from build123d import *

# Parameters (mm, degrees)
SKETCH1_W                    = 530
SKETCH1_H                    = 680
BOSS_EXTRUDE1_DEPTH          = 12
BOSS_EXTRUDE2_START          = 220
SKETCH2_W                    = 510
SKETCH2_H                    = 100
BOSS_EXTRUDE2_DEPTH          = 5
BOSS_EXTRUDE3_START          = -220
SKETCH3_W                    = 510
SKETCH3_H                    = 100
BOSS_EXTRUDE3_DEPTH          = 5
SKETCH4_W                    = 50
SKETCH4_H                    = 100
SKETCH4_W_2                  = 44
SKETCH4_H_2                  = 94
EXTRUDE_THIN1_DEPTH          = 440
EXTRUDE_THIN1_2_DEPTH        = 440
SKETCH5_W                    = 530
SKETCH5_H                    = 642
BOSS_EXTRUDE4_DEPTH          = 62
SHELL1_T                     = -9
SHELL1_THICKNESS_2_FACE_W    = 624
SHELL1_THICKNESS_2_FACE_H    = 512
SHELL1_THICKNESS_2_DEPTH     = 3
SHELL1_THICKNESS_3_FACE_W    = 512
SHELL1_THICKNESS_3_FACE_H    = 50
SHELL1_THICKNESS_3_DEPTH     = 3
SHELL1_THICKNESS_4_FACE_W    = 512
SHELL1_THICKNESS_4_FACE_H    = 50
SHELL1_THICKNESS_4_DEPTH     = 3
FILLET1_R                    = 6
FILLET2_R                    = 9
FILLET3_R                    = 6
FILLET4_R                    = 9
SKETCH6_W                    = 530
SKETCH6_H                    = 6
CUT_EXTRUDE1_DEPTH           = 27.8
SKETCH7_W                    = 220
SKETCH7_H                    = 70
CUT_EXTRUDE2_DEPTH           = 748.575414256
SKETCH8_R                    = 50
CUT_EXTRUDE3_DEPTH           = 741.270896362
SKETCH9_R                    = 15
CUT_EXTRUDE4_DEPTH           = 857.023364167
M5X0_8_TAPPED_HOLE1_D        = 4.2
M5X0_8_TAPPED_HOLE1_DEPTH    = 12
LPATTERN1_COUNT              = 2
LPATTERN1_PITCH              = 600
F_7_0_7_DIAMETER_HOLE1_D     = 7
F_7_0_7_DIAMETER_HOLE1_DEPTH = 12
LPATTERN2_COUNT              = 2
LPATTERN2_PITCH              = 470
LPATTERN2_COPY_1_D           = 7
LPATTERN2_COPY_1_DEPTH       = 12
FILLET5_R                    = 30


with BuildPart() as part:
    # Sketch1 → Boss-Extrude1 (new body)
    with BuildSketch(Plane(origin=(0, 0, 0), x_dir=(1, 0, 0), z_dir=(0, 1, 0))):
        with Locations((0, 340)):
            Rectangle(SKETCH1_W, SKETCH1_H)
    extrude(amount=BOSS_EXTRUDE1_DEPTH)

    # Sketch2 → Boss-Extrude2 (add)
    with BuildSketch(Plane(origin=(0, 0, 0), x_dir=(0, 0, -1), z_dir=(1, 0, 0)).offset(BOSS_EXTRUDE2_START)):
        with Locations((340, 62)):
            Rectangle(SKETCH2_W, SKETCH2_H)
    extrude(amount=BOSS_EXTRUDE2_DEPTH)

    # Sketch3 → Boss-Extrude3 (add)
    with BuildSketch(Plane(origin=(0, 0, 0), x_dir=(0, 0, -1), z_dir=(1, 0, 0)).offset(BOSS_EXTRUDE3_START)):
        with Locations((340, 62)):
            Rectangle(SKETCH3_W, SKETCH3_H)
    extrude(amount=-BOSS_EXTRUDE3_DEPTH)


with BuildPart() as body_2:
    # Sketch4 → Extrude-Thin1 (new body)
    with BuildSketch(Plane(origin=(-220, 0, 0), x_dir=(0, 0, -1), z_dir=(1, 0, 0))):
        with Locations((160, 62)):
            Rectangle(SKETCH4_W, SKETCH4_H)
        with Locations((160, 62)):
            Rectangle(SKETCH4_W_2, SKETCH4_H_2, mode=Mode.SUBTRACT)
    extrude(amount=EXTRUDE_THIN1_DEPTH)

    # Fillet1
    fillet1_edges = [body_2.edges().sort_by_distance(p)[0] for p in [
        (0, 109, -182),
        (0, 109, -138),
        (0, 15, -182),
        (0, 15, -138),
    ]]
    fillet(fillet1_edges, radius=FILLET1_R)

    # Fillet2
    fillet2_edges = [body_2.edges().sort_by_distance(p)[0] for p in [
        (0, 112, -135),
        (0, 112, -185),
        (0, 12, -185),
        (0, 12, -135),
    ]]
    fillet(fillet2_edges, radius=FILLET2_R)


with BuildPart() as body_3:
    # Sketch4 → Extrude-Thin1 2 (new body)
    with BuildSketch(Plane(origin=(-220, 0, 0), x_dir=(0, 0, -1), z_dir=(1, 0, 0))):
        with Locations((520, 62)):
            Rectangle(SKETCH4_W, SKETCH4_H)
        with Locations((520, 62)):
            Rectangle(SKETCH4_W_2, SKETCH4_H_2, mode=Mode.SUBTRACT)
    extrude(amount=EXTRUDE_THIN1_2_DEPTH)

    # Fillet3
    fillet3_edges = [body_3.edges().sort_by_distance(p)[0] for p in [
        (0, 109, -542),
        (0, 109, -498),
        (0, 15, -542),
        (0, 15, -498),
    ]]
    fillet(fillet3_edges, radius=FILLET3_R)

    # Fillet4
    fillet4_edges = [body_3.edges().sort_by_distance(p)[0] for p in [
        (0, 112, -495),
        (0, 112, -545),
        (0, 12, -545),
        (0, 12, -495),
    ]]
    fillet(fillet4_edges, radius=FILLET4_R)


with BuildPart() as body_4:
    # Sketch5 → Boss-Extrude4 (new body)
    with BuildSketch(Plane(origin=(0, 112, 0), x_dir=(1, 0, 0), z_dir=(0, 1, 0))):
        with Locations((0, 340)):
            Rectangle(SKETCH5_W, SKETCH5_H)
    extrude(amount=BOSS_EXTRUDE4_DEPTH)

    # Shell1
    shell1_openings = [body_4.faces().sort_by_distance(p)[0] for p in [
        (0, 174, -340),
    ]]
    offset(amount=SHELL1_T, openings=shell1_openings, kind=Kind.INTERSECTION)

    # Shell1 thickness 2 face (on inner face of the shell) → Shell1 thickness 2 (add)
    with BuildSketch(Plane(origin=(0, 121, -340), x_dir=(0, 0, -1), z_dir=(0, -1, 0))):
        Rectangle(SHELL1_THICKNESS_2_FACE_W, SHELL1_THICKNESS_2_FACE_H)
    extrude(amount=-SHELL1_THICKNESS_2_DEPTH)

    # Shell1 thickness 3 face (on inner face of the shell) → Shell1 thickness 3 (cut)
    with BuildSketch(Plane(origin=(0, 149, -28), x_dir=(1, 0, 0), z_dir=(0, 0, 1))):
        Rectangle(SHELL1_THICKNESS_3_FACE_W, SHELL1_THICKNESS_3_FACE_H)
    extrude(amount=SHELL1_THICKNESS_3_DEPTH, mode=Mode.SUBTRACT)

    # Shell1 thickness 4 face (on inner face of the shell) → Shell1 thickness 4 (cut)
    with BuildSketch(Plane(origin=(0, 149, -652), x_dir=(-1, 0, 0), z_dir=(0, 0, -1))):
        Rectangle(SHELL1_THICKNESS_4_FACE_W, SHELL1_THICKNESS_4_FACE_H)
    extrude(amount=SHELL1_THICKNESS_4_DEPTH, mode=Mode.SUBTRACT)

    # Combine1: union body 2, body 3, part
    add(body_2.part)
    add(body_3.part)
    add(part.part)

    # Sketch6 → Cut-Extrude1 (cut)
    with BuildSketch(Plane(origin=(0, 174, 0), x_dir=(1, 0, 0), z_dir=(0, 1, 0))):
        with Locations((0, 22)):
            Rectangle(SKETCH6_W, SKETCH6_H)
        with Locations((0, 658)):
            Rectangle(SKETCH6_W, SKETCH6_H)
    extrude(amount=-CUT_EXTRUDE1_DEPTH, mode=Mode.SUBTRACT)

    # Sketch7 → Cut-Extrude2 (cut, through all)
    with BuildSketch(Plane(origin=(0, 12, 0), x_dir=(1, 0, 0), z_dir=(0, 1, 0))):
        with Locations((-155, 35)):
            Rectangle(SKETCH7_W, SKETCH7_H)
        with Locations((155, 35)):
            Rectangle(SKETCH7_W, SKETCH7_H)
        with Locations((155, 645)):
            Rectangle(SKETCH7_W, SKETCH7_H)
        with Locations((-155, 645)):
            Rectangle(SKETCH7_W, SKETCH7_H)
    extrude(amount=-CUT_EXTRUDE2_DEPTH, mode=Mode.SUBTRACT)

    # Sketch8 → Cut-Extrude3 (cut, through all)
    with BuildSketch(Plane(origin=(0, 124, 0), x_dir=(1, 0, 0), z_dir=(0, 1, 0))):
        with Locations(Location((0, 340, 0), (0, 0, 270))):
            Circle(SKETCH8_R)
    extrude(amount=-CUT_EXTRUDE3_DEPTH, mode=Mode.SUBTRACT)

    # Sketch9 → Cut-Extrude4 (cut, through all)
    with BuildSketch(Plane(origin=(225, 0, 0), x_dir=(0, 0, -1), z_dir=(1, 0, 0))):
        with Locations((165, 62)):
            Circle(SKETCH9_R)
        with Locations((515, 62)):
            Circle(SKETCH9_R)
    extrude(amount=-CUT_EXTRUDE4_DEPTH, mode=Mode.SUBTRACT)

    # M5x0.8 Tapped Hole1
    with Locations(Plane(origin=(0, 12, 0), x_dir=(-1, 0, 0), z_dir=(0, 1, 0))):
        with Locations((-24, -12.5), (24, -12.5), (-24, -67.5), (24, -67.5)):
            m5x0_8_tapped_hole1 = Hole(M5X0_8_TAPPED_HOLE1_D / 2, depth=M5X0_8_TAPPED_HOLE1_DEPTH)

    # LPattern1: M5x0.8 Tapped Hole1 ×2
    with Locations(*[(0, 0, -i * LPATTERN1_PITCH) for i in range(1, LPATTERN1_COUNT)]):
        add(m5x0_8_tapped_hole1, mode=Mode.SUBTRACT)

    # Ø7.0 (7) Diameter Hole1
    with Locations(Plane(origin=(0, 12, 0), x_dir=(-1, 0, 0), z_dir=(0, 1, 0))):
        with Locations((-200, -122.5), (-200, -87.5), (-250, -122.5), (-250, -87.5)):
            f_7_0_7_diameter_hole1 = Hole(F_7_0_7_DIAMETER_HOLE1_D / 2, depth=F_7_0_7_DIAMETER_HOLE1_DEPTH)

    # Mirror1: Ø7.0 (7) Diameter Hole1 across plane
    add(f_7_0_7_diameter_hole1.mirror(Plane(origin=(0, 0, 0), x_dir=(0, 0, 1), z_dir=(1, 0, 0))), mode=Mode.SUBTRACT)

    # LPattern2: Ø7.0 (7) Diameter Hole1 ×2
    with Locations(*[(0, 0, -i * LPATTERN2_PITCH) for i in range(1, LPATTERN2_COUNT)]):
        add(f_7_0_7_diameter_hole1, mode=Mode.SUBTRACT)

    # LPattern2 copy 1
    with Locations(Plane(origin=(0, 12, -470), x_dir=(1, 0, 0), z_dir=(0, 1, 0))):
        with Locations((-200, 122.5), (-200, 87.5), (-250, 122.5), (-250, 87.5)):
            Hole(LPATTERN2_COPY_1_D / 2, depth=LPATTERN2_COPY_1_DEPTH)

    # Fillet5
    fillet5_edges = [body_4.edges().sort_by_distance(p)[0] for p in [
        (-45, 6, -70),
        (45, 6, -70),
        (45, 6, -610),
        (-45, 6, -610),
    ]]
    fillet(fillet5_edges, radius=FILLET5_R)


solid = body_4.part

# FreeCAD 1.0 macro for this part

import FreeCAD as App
import Part
import Sketcher

V = App.Vector


def edges_at(feature, points):
    """Names of the edges that pass closest to the given points."""
    edges = feature.Shape.Edges
    near = lambda p: min(range(len(edges)), key=lambda i: edges[i].distToShape(Part.Vertex(*p))[0])
    return sorted({f"Edge{near(p) + 1}" for p in points})


def faces_at(feature, points):
    """Names of the faces that lie closest to the given points."""
    faces = feature.Shape.Faces
    near = lambda p: min(range(len(faces)), key=lambda i: faces[i].distToShape(Part.Vertex(*p))[0])
    return sorted({f"Face{near(p) + 1}" for p in points})

doc = App.newDocument("Part")
body = doc.addObject("PartDesign::Body", "Body")

# Sketch on XZ plane
sketch1 = body.newObject("Sketcher::SketchObject", "Sketch")
sketch1.AttachmentSupport = (doc.getObject("XZ_Plane"), [""])
sketch1.MapMode = "FlatFace"
sketch1.addGeometry([
    Part.LineSegment(V(-265, -680, 0), V(-265, 0, 0)),
    Part.LineSegment(V(-265, 0, 0), V(265, 0, 0)),
    Part.LineSegment(V(265, 0, 0), V(265, -680, 0)),
    Part.LineSegment(V(265, -680, 0), V(-265, -680, 0)),
], False)
sketch1.addConstraint([
    Sketcher.Constraint("Coincident", 0, 2, 1, 1),
    Sketcher.Constraint("Coincident", 1, 2, 2, 1),
    Sketcher.Constraint("Coincident", 2, 2, 3, 1),
    Sketcher.Constraint("Coincident", 3, 2, 0, 1),
    Sketcher.Constraint("Vertical", 0),
    Sketcher.Constraint("Horizontal", 1),
    Sketcher.Constraint("Vertical", 2),
    Sketcher.Constraint("Horizontal", 3),
    Sketcher.Constraint("Symmetric", 0, 2, 1, 2, -1, 1),
    Sketcher.Constraint("DistanceX", 1, 1, 1, 2, 530.0),
    Sketcher.Constraint("DistanceY", 0, 1, 0, 2, 680.0),
])
pad1 = body.newObject("PartDesign::Pad", "Pad")
pad1.Profile = sketch1
pad1.Length = 12
pad1.Reversed = True

# Sketch on YZ plane
sketch2 = body.newObject("Sketcher::SketchObject", "Sketch001")
sketch2.AttachmentSupport = (doc.getObject("YZ_Plane"), [""])
sketch2.MapMode = "FlatFace"
sketch2.AttachmentOffset = App.Placement(V(0, 0, 220), App.Rotation())
sketch2.addGeometry([
    Part.LineSegment(V(112, -85, 0), V(12, -85, 0)),
    Part.LineSegment(V(12, -85, 0), V(12, -595, 0)),
    Part.LineSegment(V(12, -595, 0), V(112, -595, 0)),
    Part.LineSegment(V(112, -595, 0), V(112, -85, 0)),
], False)
sketch2.addConstraint([
    Sketcher.Constraint("Coincident", 0, 2, 1, 1),
    Sketcher.Constraint("Coincident", 1, 2, 2, 1),
    Sketcher.Constraint("Coincident", 2, 2, 3, 1),
    Sketcher.Constraint("Coincident", 3, 2, 0, 1),
    Sketcher.Constraint("Horizontal", 0),
    Sketcher.Constraint("Vertical", 1),
    Sketcher.Constraint("Horizontal", 2),
    Sketcher.Constraint("Vertical", 3),
    Sketcher.Constraint("DistanceX", 0, 2, 0, 1, 100.0),
    Sketcher.Constraint("DistanceY", 1, 2, 1, 1, 510.0),
    Sketcher.Constraint("DistanceX", -1, 1, 0, 2, 12.0),
    Sketcher.Constraint("DistanceY", 0, 2, -1, 1, 85.0),
])
pad2 = body.newObject("PartDesign::Pad", "Pad001")
pad2.Profile = sketch2
pad2.Length = 5

# Sketch on YZ plane
sketch3 = body.newObject("Sketcher::SketchObject", "Sketch002")
sketch3.AttachmentSupport = (doc.getObject("YZ_Plane"), [""])
sketch3.MapMode = "FlatFace"
sketch3.AttachmentOffset = App.Placement(V(0, 0, -220), App.Rotation())
sketch3.addGeometry([
    Part.LineSegment(V(112, -85, 0), V(12, -85, 0)),
    Part.LineSegment(V(12, -85, 0), V(12, -595, 0)),
    Part.LineSegment(V(12, -595, 0), V(112, -595, 0)),
    Part.LineSegment(V(112, -595, 0), V(112, -85, 0)),
], False)
sketch3.addConstraint([
    Sketcher.Constraint("Coincident", 0, 2, 1, 1),
    Sketcher.Constraint("Coincident", 1, 2, 2, 1),
    Sketcher.Constraint("Coincident", 2, 2, 3, 1),
    Sketcher.Constraint("Coincident", 3, 2, 0, 1),
    Sketcher.Constraint("Horizontal", 0),
    Sketcher.Constraint("Vertical", 1),
    Sketcher.Constraint("Horizontal", 2),
    Sketcher.Constraint("Vertical", 3),
    Sketcher.Constraint("DistanceX", 0, 2, 0, 1, 100.0),
    Sketcher.Constraint("DistanceY", 1, 2, 1, 1, 510.0),
    Sketcher.Constraint("DistanceX", -1, 1, 0, 2, 12.0),
    Sketcher.Constraint("DistanceY", 0, 2, -1, 1, 85.0),
])
pad3 = body.newObject("PartDesign::Pad", "Pad002")
pad3.Profile = sketch3
pad3.Length = 5
pad3.Reversed = True
body2 = doc.addObject("PartDesign::Body", "Body001")

# Sketch on YZ plane
sketch4 = body2.newObject("Sketcher::SketchObject", "Sketch003")
sketch4.AttachmentSupport = (doc.getObject("YZ_Plane001"), [""])
sketch4.MapMode = "FlatFace"
sketch4.AttachmentOffset = App.Placement(V(0, 0, -220), App.Rotation())
sketch4.addGeometry([
    Part.LineSegment(V(112, -135, 0), V(12, -135, 0)),  # 0
    Part.LineSegment(V(12, -135, 0), V(12, -185, 0)),  # 1
    Part.LineSegment(V(12, -185, 0), V(112, -185, 0)),  # 2
    Part.LineSegment(V(112, -185, 0), V(112, -135, 0)),  # 3
    Part.LineSegment(V(15, -182, 0), V(15, -138, 0)),  # 4
    Part.LineSegment(V(15, -138, 0), V(109, -138, 0)),  # 5
    Part.LineSegment(V(109, -138, 0), V(109, -182, 0)),  # 6
    Part.LineSegment(V(109, -182, 0), V(15, -182, 0)),  # 7
], False)
sketch4.addConstraint([
    Sketcher.Constraint("Coincident", 0, 2, 1, 1),
    Sketcher.Constraint("Coincident", 1, 2, 2, 1),
    Sketcher.Constraint("Coincident", 2, 2, 3, 1),
    Sketcher.Constraint("Coincident", 3, 2, 0, 1),
    Sketcher.Constraint("Coincident", 4, 2, 5, 1),
    Sketcher.Constraint("Coincident", 5, 2, 6, 1),
    Sketcher.Constraint("Coincident", 6, 2, 7, 1),
    Sketcher.Constraint("Coincident", 7, 2, 4, 1),
    Sketcher.Constraint("Horizontal", 0),
    Sketcher.Constraint("Vertical", 1),
    Sketcher.Constraint("Horizontal", 2),
    Sketcher.Constraint("Vertical", 3),
    Sketcher.Constraint("Vertical", 4),
    Sketcher.Constraint("Horizontal", 5),
    Sketcher.Constraint("Vertical", 6),
    Sketcher.Constraint("Horizontal", 7),
    Sketcher.Constraint("DistanceX", 0, 2, 0, 1, 100.0),
    Sketcher.Constraint("DistanceX", 5, 1, 5, 2, 94.0),
    Sketcher.Constraint("DistanceY", 1, 2, 1, 1, 50.0),
    Sketcher.Constraint("DistanceY", 4, 1, 4, 2, 44.0),
    Sketcher.Constraint("DistanceX", -1, 1, 0, 2, 12.0),
    Sketcher.Constraint("DistanceY", 0, 2, -1, 1, 135.0),
    Sketcher.Constraint("DistanceX", -1, 1, 4, 2, 15.0),
    Sketcher.Constraint("DistanceY", 4, 2, -1, 1, 138.0),
])
pad4 = body2.newObject("PartDesign::Pad", "Pad003")
pad4.Profile = sketch4
pad4.Length = 440
doc.recompute()

fillet = body2.newObject("PartDesign::Fillet", "Fillet")
fillet.Base = (pad4, edges_at(pad4, [
    (0, 109, -182),
    (0, 109, -138),
    (0, 15, -182),
    (0, 15, -138),
]))
fillet.Radius = 6
doc.recompute()

fillet2 = body2.newObject("PartDesign::Fillet", "Fillet001")
fillet2.Base = (fillet, edges_at(fillet, [
    (0, 112, -135),
    (0, 112, -185),
    (0, 12, -185),
    (0, 12, -135),
]))
fillet2.Radius = 9
body3 = doc.addObject("PartDesign::Body", "Body002")

# Sketch on YZ plane
sketch5 = body3.newObject("Sketcher::SketchObject", "Sketch004")
sketch5.AttachmentSupport = (doc.getObject("YZ_Plane002"), [""])
sketch5.MapMode = "FlatFace"
sketch5.AttachmentOffset = App.Placement(V(0, 0, -220), App.Rotation())
sketch5.addGeometry([
    Part.LineSegment(V(112, -495, 0), V(12, -495, 0)),  # 0
    Part.LineSegment(V(12, -495, 0), V(12, -545, 0)),  # 1
    Part.LineSegment(V(12, -545, 0), V(112, -545, 0)),  # 2
    Part.LineSegment(V(112, -545, 0), V(112, -495, 0)),  # 3
    Part.LineSegment(V(15, -542, 0), V(15, -498, 0)),  # 4
    Part.LineSegment(V(15, -498, 0), V(109, -498, 0)),  # 5
    Part.LineSegment(V(109, -498, 0), V(109, -542, 0)),  # 6
    Part.LineSegment(V(109, -542, 0), V(15, -542, 0)),  # 7
], False)
sketch5.addConstraint([
    Sketcher.Constraint("Coincident", 0, 2, 1, 1),
    Sketcher.Constraint("Coincident", 1, 2, 2, 1),
    Sketcher.Constraint("Coincident", 2, 2, 3, 1),
    Sketcher.Constraint("Coincident", 3, 2, 0, 1),
    Sketcher.Constraint("Coincident", 4, 2, 5, 1),
    Sketcher.Constraint("Coincident", 5, 2, 6, 1),
    Sketcher.Constraint("Coincident", 6, 2, 7, 1),
    Sketcher.Constraint("Coincident", 7, 2, 4, 1),
    Sketcher.Constraint("Horizontal", 0),
    Sketcher.Constraint("Vertical", 1),
    Sketcher.Constraint("Horizontal", 2),
    Sketcher.Constraint("Vertical", 3),
    Sketcher.Constraint("Vertical", 4),
    Sketcher.Constraint("Horizontal", 5),
    Sketcher.Constraint("Vertical", 6),
    Sketcher.Constraint("Horizontal", 7),
    Sketcher.Constraint("DistanceX", 0, 2, 0, 1, 100.0),
    Sketcher.Constraint("DistanceX", 5, 1, 5, 2, 94.0),
    Sketcher.Constraint("DistanceY", 1, 2, 1, 1, 50.0),
    Sketcher.Constraint("DistanceY", 4, 1, 4, 2, 44.0),
    Sketcher.Constraint("DistanceX", -1, 1, 0, 2, 12.0),
    Sketcher.Constraint("DistanceY", 0, 2, -1, 1, 495.0),
    Sketcher.Constraint("DistanceX", -1, 1, 4, 2, 15.0),
    Sketcher.Constraint("DistanceY", 4, 2, -1, 1, 498.0),
])
pad5 = body3.newObject("PartDesign::Pad", "Pad004")
pad5.Profile = sketch5
pad5.Length = 440
doc.recompute()

fillet3 = body3.newObject("PartDesign::Fillet", "Fillet002")
fillet3.Base = (pad5, edges_at(pad5, [
    (0, 109, -542),
    (0, 109, -498),
    (0, 15, -542),
    (0, 15, -498),
]))
fillet3.Radius = 6
doc.recompute()

fillet4 = body3.newObject("PartDesign::Fillet", "Fillet003")
fillet4.Base = (fillet3, edges_at(fillet3, [
    (0, 112, -495),
    (0, 112, -545),
    (0, 12, -545),
    (0, 12, -495),
]))
fillet4.Radius = 9
body4 = doc.addObject("PartDesign::Body", "Body003")

# Sketch on XZ plane
sketch6 = body4.newObject("Sketcher::SketchObject", "Sketch005")
sketch6.AttachmentSupport = (doc.getObject("XZ_Plane003"), [""])
sketch6.MapMode = "FlatFace"
sketch6.AttachmentOffset = App.Placement(V(0, 0, -112), App.Rotation())
sketch6.addGeometry([
    Part.LineSegment(V(-265, -661, 0), V(-265, -19, 0)),
    Part.LineSegment(V(-265, -19, 0), V(265, -19, 0)),
    Part.LineSegment(V(265, -19, 0), V(265, -661, 0)),
    Part.LineSegment(V(265, -661, 0), V(-265, -661, 0)),
], False)
sketch6.addConstraint([
    Sketcher.Constraint("Coincident", 0, 2, 1, 1),
    Sketcher.Constraint("Coincident", 1, 2, 2, 1),
    Sketcher.Constraint("Coincident", 2, 2, 3, 1),
    Sketcher.Constraint("Coincident", 3, 2, 0, 1),
    Sketcher.Constraint("Vertical", 0),
    Sketcher.Constraint("Horizontal", 1),
    Sketcher.Constraint("Vertical", 2),
    Sketcher.Constraint("Horizontal", 3),
    Sketcher.Constraint("DistanceX", 1, 1, 1, 2, 530.0),
    Sketcher.Constraint("DistanceY", 0, 1, 0, 2, 642.0),
    Sketcher.Constraint("DistanceX", 0, 2, -1, 1, 265.0),
    Sketcher.Constraint("DistanceY", 0, 2, -1, 1, 19.0),
])
pad6 = body4.newObject("PartDesign::Pad", "Pad005")
pad6.Profile = sketch6
pad6.Length = 62
pad6.Reversed = True
doc.recompute()

thickness = body4.newObject("PartDesign::Thickness", "Thickness")
thickness.Base = (pad6, faces_at(pad6, [(0, 174, -340)]))
thickness.Value = 9
thickness.Reversed = True
thickness.Join = "Intersection"

# Sketch on XZ plane
sketch7 = body4.newObject("Sketcher::SketchObject", "Sketch006")
sketch7.AttachmentSupport = (doc.getObject("XZ_Plane003"), [""])
sketch7.MapMode = "FlatFace"
sketch7.AttachmentOffset = App.Placement(V(0, 0, -121), App.Rotation())
sketch7.addGeometry([
    Part.LineSegment(V(256, -28, 0), V(-256, -28, 0)),
    Part.LineSegment(V(-256, -28, 0), V(-256, -652, 0)),
    Part.LineSegment(V(-256, -652, 0), V(256, -652, 0)),
    Part.LineSegment(V(256, -652, 0), V(256, -28, 0)),
], False)
sketch7.addConstraint([
    Sketcher.Constraint("Coincident", 0, 2, 1, 1),
    Sketcher.Constraint("Coincident", 1, 2, 2, 1),
    Sketcher.Constraint("Coincident", 2, 2, 3, 1),
    Sketcher.Constraint("Coincident", 3, 2, 0, 1),
    Sketcher.Constraint("Horizontal", 0),
    Sketcher.Constraint("Vertical", 1),
    Sketcher.Constraint("Horizontal", 2),
    Sketcher.Constraint("Vertical", 3),
    Sketcher.Constraint("DistanceX", 0, 2, 0, 1, 512.0),
    Sketcher.Constraint("DistanceY", 1, 2, 1, 1, 624.0),
    Sketcher.Constraint("DistanceX", 0, 2, -1, 1, 256.0),
    Sketcher.Constraint("DistanceY", 0, 2, -1, 1, 28.0),
])
pad7 = body4.newObject("PartDesign::Pad", "Pad006")
pad7.Profile = sketch7
pad7.Length = 3
pad7.Reversed = True

# Sketch on XY plane
sketch8 = body4.newObject("Sketcher::SketchObject", "Sketch007")
sketch8.AttachmentSupport = (doc.getObject("XY_Plane003"), [""])
sketch8.MapMode = "FlatFace"
sketch8.AttachmentOffset = App.Placement(V(0, 0, -28), App.Rotation())
sketch8.addGeometry([
    Part.LineSegment(V(-256, 174, 0), V(-256, 124, 0)),
    Part.LineSegment(V(-256, 124, 0), V(256, 124, 0)),
    Part.LineSegment(V(256, 124, 0), V(256, 174, 0)),
    Part.LineSegment(V(256, 174, 0), V(-256, 174, 0)),
], False)
sketch8.addConstraint([
    Sketcher.Constraint("Coincident", 0, 2, 1, 1),
    Sketcher.Constraint("Coincident", 1, 2, 2, 1),
    Sketcher.Constraint("Coincident", 2, 2, 3, 1),
    Sketcher.Constraint("Coincident", 3, 2, 0, 1),
    Sketcher.Constraint("Vertical", 0),
    Sketcher.Constraint("Horizontal", 1),
    Sketcher.Constraint("Vertical", 2),
    Sketcher.Constraint("Horizontal", 3),
    Sketcher.Constraint("DistanceX", 1, 1, 1, 2, 512.0),
    Sketcher.Constraint("DistanceY", 0, 2, 0, 1, 50.0),
    Sketcher.Constraint("DistanceX", 0, 2, -1, 1, 256.0),
    Sketcher.Constraint("DistanceY", -1, 1, 0, 2, 124.0),
])
pocket1 = body4.newObject("PartDesign::Pocket", "Pocket")
pocket1.Profile = sketch8
pocket1.Length = 3
pocket1.Reversed = True

# Sketch on XY plane
sketch9 = body4.newObject("Sketcher::SketchObject", "Sketch008")
sketch9.AttachmentSupport = (doc.getObject("XY_Plane003"), [""])
sketch9.MapMode = "FlatFace"
sketch9.AttachmentOffset = App.Placement(V(0, 0, -652), App.Rotation())
sketch9.addGeometry([
    Part.LineSegment(V(256, 174, 0), V(256, 124, 0)),
    Part.LineSegment(V(256, 124, 0), V(-256, 124, 0)),
    Part.LineSegment(V(-256, 124, 0), V(-256, 174, 0)),
    Part.LineSegment(V(-256, 174, 0), V(256, 174, 0)),
], False)
sketch9.addConstraint([
    Sketcher.Constraint("Coincident", 0, 2, 1, 1),
    Sketcher.Constraint("Coincident", 1, 2, 2, 1),
    Sketcher.Constraint("Coincident", 2, 2, 3, 1),
    Sketcher.Constraint("Coincident", 3, 2, 0, 1),
    Sketcher.Constraint("Vertical", 0),
    Sketcher.Constraint("Horizontal", 1),
    Sketcher.Constraint("Vertical", 2),
    Sketcher.Constraint("Horizontal", 3),
    Sketcher.Constraint("DistanceX", 1, 2, 1, 1, 512.0),
    Sketcher.Constraint("DistanceY", 0, 2, 0, 1, 50.0),
    Sketcher.Constraint("DistanceX", -1, 1, 0, 2, 256.0),
    Sketcher.Constraint("DistanceY", -1, 1, 0, 2, 124.0),
])
pocket2 = body4.newObject("PartDesign::Pocket", "Pocket001")
pocket2.Profile = sketch9
pocket2.Length = 3
doc.recompute()

boolean = body4.newObject("PartDesign::Boolean", "Boolean")
boolean.Type = "Fuse"
boolean.addObjects([body2])
doc.recompute()

boolean2 = body4.newObject("PartDesign::Boolean", "Boolean001")
boolean2.Type = "Fuse"
boolean2.addObjects([body3])
doc.recompute()

boolean3 = body4.newObject("PartDesign::Boolean", "Boolean002")
boolean3.Type = "Fuse"
boolean3.addObjects([body])

# Sketch on XZ plane
sketch10 = body4.newObject("Sketcher::SketchObject", "Sketch009")
sketch10.AttachmentSupport = (doc.getObject("XZ_Plane003"), [""])
sketch10.MapMode = "FlatFace"
sketch10.AttachmentOffset = App.Placement(V(0, 0, -174), App.Rotation())
sketch10.addGeometry([
    Part.LineSegment(V(-265, -25, 0), V(-265, -19, 0)),  # 0
    Part.LineSegment(V(-265, -19, 0), V(265, -19, 0)),  # 1
    Part.LineSegment(V(265, -19, 0), V(265, -25, 0)),  # 2
    Part.LineSegment(V(265, -25, 0), V(-265, -25, 0)),  # 3
    Part.LineSegment(V(-265, -661, 0), V(-265, -655, 0)),  # 4
    Part.LineSegment(V(-265, -655, 0), V(265, -655, 0)),  # 5
    Part.LineSegment(V(265, -655, 0), V(265, -661, 0)),  # 6
    Part.LineSegment(V(265, -661, 0), V(-265, -661, 0)),  # 7
], False)
sketch10.addConstraint([
    Sketcher.Constraint("Coincident", 0, 2, 1, 1),
    Sketcher.Constraint("Coincident", 1, 2, 2, 1),
    Sketcher.Constraint("Coincident", 2, 2, 3, 1),
    Sketcher.Constraint("Coincident", 3, 2, 0, 1),
    Sketcher.Constraint("Coincident", 4, 2, 5, 1),
    Sketcher.Constraint("Coincident", 5, 2, 6, 1),
    Sketcher.Constraint("Coincident", 6, 2, 7, 1),
    Sketcher.Constraint("Coincident", 7, 2, 4, 1),
    Sketcher.Constraint("Vertical", 0),
    Sketcher.Constraint("Horizontal", 1),
    Sketcher.Constraint("Vertical", 2),
    Sketcher.Constraint("Horizontal", 3),
    Sketcher.Constraint("Vertical", 4),
    Sketcher.Constraint("Horizontal", 5),
    Sketcher.Constraint("Vertical", 6),
    Sketcher.Constraint("Horizontal", 7),
    Sketcher.Constraint("Vertical", 3, 2, 4, 2),
    Sketcher.Constraint("Vertical", 2, 2, 5, 2),
    Sketcher.Constraint("Equal", 2, 4),
    Sketcher.Constraint("DistanceX", 1, 1, 1, 2, 530.0),
    Sketcher.Constraint("DistanceY", 0, 1, 0, 2, 6.0),
    Sketcher.Constraint("DistanceX", 0, 2, -1, 1, 265.0),
    Sketcher.Constraint("DistanceY", 0, 2, -1, 1, 19.0),
    Sketcher.Constraint("DistanceY", 4, 2, -1, 1, 655.0),
])
pocket3 = body4.newObject("PartDesign::Pocket", "Pocket002")
pocket3.Profile = sketch10
pocket3.Length = 27.8
pocket3.Reversed = True

# Sketch on XZ plane
sketch11 = body4.newObject("Sketcher::SketchObject", "Sketch010")
sketch11.AttachmentSupport = (doc.getObject("XZ_Plane003"), [""])
sketch11.MapMode = "FlatFace"
sketch11.AttachmentOffset = App.Placement(V(0, 0, -12), App.Rotation())
sketch11.addGeometry([
    Part.LineSegment(V(-265, -70, 0), V(-265, 0, 0)),  # 0
    Part.LineSegment(V(-265, 0, 0), V(-45, 0, 0)),  # 1
    Part.LineSegment(V(-45, 0, 0), V(-45, -70, 0)),  # 2
    Part.LineSegment(V(-45, -70, 0), V(-265, -70, 0)),  # 3
    Part.LineSegment(V(45, -70, 0), V(45, 0, 0)),  # 4
    Part.LineSegment(V(45, 0, 0), V(265, 0, 0)),  # 5
    Part.LineSegment(V(265, 0, 0), V(265, -70, 0)),  # 6
    Part.LineSegment(V(265, -70, 0), V(45, -70, 0)),  # 7
    Part.LineSegment(V(45, -680, 0), V(45, -610, 0)),  # 8
    Part.LineSegment(V(45, -610, 0), V(265, -610, 0)),  # 9
    Part.LineSegment(V(265, -610, 0), V(265, -680, 0)),  # 10
    Part.LineSegment(V(265, -680, 0), V(45, -680, 0)),  # 11
    Part.LineSegment(V(-265, -680, 0), V(-265, -610, 0)),  # 12
    Part.LineSegment(V(-265, -610, 0), V(-45, -610, 0)),  # 13
    Part.LineSegment(V(-45, -610, 0), V(-45, -680, 0)),  # 14
    Part.LineSegment(V(-45, -680, 0), V(-265, -680, 0)),  # 15
], False)
sketch11.addConstraint([
    Sketcher.Constraint("Coincident", 0, 2, 1, 1),
    Sketcher.Constraint("Coincident", 1, 2, 2, 1),
    Sketcher.Constraint("Coincident", 2, 2, 3, 1),
    Sketcher.Constraint("Coincident", 3, 2, 0, 1),
    Sketcher.Constraint("Coincident", 4, 2, 5, 1),
    Sketcher.Constraint("Coincident", 5, 2, 6, 1),
    Sketcher.Constraint("Coincident", 6, 2, 7, 1),
    Sketcher.Constraint("Coincident", 7, 2, 4, 1),
    Sketcher.Constraint("Coincident", 8, 2, 9, 1),
    Sketcher.Constraint("Coincident", 9, 2, 10, 1),
    Sketcher.Constraint("Coincident", 10, 2, 11, 1),
    Sketcher.Constraint("Coincident", 11, 2, 8, 1),
    Sketcher.Constraint("Coincident", 12, 2, 13, 1),
    Sketcher.Constraint("Coincident", 13, 2, 14, 1),
    Sketcher.Constraint("Coincident", 14, 2, 15, 1),
    Sketcher.Constraint("Coincident", 15, 2, 12, 1),
    Sketcher.Constraint("Vertical", 0),
    Sketcher.Constraint("Horizontal", 1),
    Sketcher.Constraint("Vertical", 2),
    Sketcher.Constraint("Horizontal", 3),
    Sketcher.Constraint("Vertical", 4),
    Sketcher.Constraint("Horizontal", 5),
    Sketcher.Constraint("Vertical", 6),
    Sketcher.Constraint("Horizontal", 7),
    Sketcher.Constraint("Vertical", 8),
    Sketcher.Constraint("Horizontal", 9),
    Sketcher.Constraint("Vertical", 10),
    Sketcher.Constraint("Horizontal", 11),
    Sketcher.Constraint("Vertical", 12),
    Sketcher.Constraint("Horizontal", 13),
    Sketcher.Constraint("Vertical", 14),
    Sketcher.Constraint("Horizontal", 15),
    Sketcher.Constraint("Symmetric", 1, 2, 4, 2, -1, 1),
    Sketcher.Constraint("Symmetric", 0, 2, 5, 2, -2),
    Sketcher.Constraint("Symmetric", 9, 2, 12, 2, -2),
    Sketcher.Constraint("Symmetric", 11, 2, 14, 2, -2),
    Sketcher.Constraint("Horizontal", 3, 2, 6, 2),
    Sketcher.Constraint("Vertical", 7, 2, 8, 2),
    Sketcher.Constraint("Vertical", 6, 2, 9, 2),
    Sketcher.Constraint("Equal", 6, 8),
    Sketcher.Constraint("DistanceX", 1, 1, 1, 2, 220.0),
    Sketcher.Constraint("DistanceY", 0, 1, 0, 2, 70.0),
    Sketcher.Constraint("DistanceX", 0, 2, -1, 1, 265.0),
    Sketcher.Constraint("DistanceY", 8, 2, -1, 1, 610.0),
])
pocket4 = body4.newObject("PartDesign::Pocket", "Pocket003")
pocket4.Profile = sketch11
pocket4.Type = "ThroughAll"
pocket4.Reversed = True

# Sketch on XZ plane
sketch12 = body4.newObject("Sketcher::SketchObject", "Sketch011")
sketch12.AttachmentSupport = (doc.getObject("XZ_Plane003"), [""])
sketch12.MapMode = "FlatFace"
sketch12.AttachmentOffset = App.Placement(V(0, 0, -124), App.Rotation())
sketch12.addGeometry(Part.Circle(V(0, -340, 0), V(0, 0, 1), 50), False)
sketch12.addConstraint([
    Sketcher.Constraint("PointOnObject", 0, 3, -2),
    Sketcher.Constraint("Diameter", 0, 100.0),
    Sketcher.Constraint("DistanceY", 0, 3, -1, 1, 340.0),
])
pocket5 = body4.newObject("PartDesign::Pocket", "Pocket004")
pocket5.Profile = sketch12
pocket5.Type = "ThroughAll"
pocket5.Reversed = True

# Sketch on YZ plane
sketch13 = body4.newObject("Sketcher::SketchObject", "Sketch012")
sketch13.AttachmentSupport = (doc.getObject("YZ_Plane003"), [""])
sketch13.MapMode = "FlatFace"
sketch13.AttachmentOffset = App.Placement(V(0, 0, 225), App.Rotation())
sketch13.addGeometry([
    Part.Circle(V(62, -165, 0), V(0, 0, 1), 15),
    Part.Circle(V(62, -515, 0), V(0, 0, 1), 15),
], False)
sketch13.addConstraint([
    Sketcher.Constraint("Equal", 0, 1),
    Sketcher.Constraint("Vertical", 0, 3, 1, 3),
    Sketcher.Constraint("Diameter", 0, 30.0),
    Sketcher.Constraint("DistanceX", -1, 1, 0, 3, 62.0),
    Sketcher.Constraint("DistanceY", 0, 3, -1, 1, 165.0),
    Sketcher.Constraint("DistanceY", 1, 3, -1, 1, 515.0),
])
pocket6 = body4.newObject("PartDesign::Pocket", "Pocket005")
pocket6.Profile = sketch13
pocket6.Type = "ThroughAll"

# Sketch on XZ plane
sketch14 = body4.newObject("Sketcher::SketchObject", "Sketch013")
sketch14.AttachmentSupport = (doc.getObject("XZ_Plane003"), [""])
sketch14.MapMode = "FlatFace"
sketch14.AttachmentOffset = App.Placement(V(0, 0, -12), App.Rotation())
sketch14.addGeometry([
    Part.Circle(V(24, -12.5, 0), V(0, 0, 1), 2.1),
    Part.Circle(V(-24, -12.5, 0), V(0, 0, 1), 2.1),
    Part.Circle(V(24, -67.5, 0), V(0, 0, 1), 2.1),
    Part.Circle(V(-24, -67.5, 0), V(0, 0, 1), 2.1),
], False)
sketch14.addConstraint([
    Sketcher.Constraint("Equal", 0, 1),
    Sketcher.Constraint("Equal", 1, 2),
    Sketcher.Constraint("Equal", 2, 3),
    Sketcher.Constraint("Symmetric", 0, 3, 1, 3, -2),
    Sketcher.Constraint("Symmetric", 2, 3, 3, 3, -2),
    Sketcher.Constraint("Vertical", 0, 3, 2, 3),
    Sketcher.Constraint("Diameter", 0, 4.2),
    Sketcher.Constraint("DistanceX", -1, 1, 0, 3, 24.0),
    Sketcher.Constraint("DistanceY", 2, 3, 0, 3, 55.0),
    Sketcher.Constraint("DistanceY", 0, 3, -1, 1, 12.5),
])
doc.recompute()
hole = body4.newObject("PartDesign::Hole", "Hole")
hole.Profile = sketch14
hole.ThreadType = "None"
hole.Diameter = 4.2
hole.DepthType = "Dimension"
hole.Depth = 12
hole.DrillPoint = "Flat"
hole.Reversed = True
doc.recompute()

linearpattern = body4.newObject("PartDesign::LinearPattern", "LinearPattern")
linearpattern.Originals = [hole]
linearpattern.Direction = (doc.getObject("Z_Axis003"), [""])
linearpattern.Mode = "offset"
linearpattern.Offset = 600
linearpattern.Occurrences = 2
linearpattern.Reversed = True
body4.Tip = linearpattern

# Sketch on XZ plane
sketch15 = body4.newObject("Sketcher::SketchObject", "Sketch014")
sketch15.AttachmentSupport = (doc.getObject("XZ_Plane003"), [""])
sketch15.MapMode = "FlatFace"
sketch15.AttachmentOffset = App.Placement(V(0, 0, -12), App.Rotation())
sketch15.addGeometry([
    Part.Circle(V(200, -122.5, 0), V(0, 0, 1), 3.5),
    Part.Circle(V(200, -87.5, 0), V(0, 0, 1), 3.5),
    Part.Circle(V(250, -122.5, 0), V(0, 0, 1), 3.5),
    Part.Circle(V(250, -87.5, 0), V(0, 0, 1), 3.5),
], False)
sketch15.addConstraint([
    Sketcher.Constraint("Equal", 0, 1),
    Sketcher.Constraint("Equal", 1, 2),
    Sketcher.Constraint("Equal", 2, 3),
    Sketcher.Constraint("Horizontal", 0, 3, 2, 3),
    Sketcher.Constraint("Horizontal", 1, 3, 3, 3),
    Sketcher.Constraint("Vertical", 0, 3, 1, 3),
    Sketcher.Constraint("Vertical", 2, 3, 3, 3),
    Sketcher.Constraint("Diameter", 0, 7.0),
    Sketcher.Constraint("DistanceX", -1, 1, 0, 3, 200.0),
    Sketcher.Constraint("DistanceX", -1, 1, 2, 3, 250.0),
    Sketcher.Constraint("DistanceY", 0, 3, 1, 3, 35.0),
    Sketcher.Constraint("DistanceY", 0, 3, -1, 1, 122.5),
])
doc.recompute()
hole2 = body4.newObject("PartDesign::Hole", "Hole001")
hole2.Profile = sketch15
hole2.ThreadType = "None"
hole2.Diameter = 7
hole2.DepthType = "Dimension"
hole2.Depth = 12
hole2.DrillPoint = "Flat"
hole2.Reversed = True
doc.recompute()

mirrored = body4.newObject("PartDesign::Mirrored", "Mirrored")
mirrored.Originals = [hole2]
mirrored.MirrorPlane = (doc.getObject("YZ_Plane003"), [""])
body4.Tip = mirrored
doc.recompute()

linearpattern2 = body4.newObject("PartDesign::LinearPattern", "LinearPattern001")
linearpattern2.Originals = [hole2]
linearpattern2.Direction = (doc.getObject("Z_Axis003"), [""])
linearpattern2.Mode = "offset"
linearpattern2.Offset = 470
linearpattern2.Occurrences = 2
linearpattern2.Reversed = True
body4.Tip = linearpattern2

# Sketch on XZ plane
sketch16 = body4.newObject("Sketcher::SketchObject", "Sketch015")
sketch16.AttachmentSupport = (doc.getObject("XZ_Plane003"), [""])
sketch16.MapMode = "FlatFace"
sketch16.AttachmentOffset = App.Placement(V(0, 0, -12), App.Rotation())
sketch16.addGeometry([
    Part.Circle(V(-200, -592.5, 0), V(0, 0, 1), 3.5),
    Part.Circle(V(-200, -557.5, 0), V(0, 0, 1), 3.5),
    Part.Circle(V(-250, -592.5, 0), V(0, 0, 1), 3.5),
    Part.Circle(V(-250, -557.5, 0), V(0, 0, 1), 3.5),
], False)
sketch16.addConstraint([
    Sketcher.Constraint("Equal", 0, 1),
    Sketcher.Constraint("Equal", 1, 2),
    Sketcher.Constraint("Equal", 2, 3),
    Sketcher.Constraint("Horizontal", 0, 3, 2, 3),
    Sketcher.Constraint("Horizontal", 1, 3, 3, 3),
    Sketcher.Constraint("Vertical", 0, 3, 1, 3),
    Sketcher.Constraint("Vertical", 2, 3, 3, 3),
    Sketcher.Constraint("Diameter", 0, 7.0),
    Sketcher.Constraint("DistanceX", 0, 3, -1, 1, 200.0),
    Sketcher.Constraint("DistanceX", 2, 3, -1, 1, 250.0),
    Sketcher.Constraint("DistanceY", 0, 3, 1, 3, 35.0),
    Sketcher.Constraint("DistanceY", 0, 3, -1, 1, 592.5),
])
doc.recompute()
hole3 = body4.newObject("PartDesign::Hole", "Hole002")
hole3.Profile = sketch16
hole3.ThreadType = "None"
hole3.Diameter = 7
hole3.DepthType = "Dimension"
hole3.Depth = 12
hole3.DrillPoint = "Flat"
hole3.Reversed = True
doc.recompute()

fillet5 = body4.newObject("PartDesign::Fillet", "Fillet004")
fillet5.Base = (hole3, edges_at(hole3, [
    (-45, 6, -70),
    (45, 6, -70),
    (45, 6, -610),
    (-45, 6, -610),
]))
fillet5.Radius = 30

doc.recompute()
